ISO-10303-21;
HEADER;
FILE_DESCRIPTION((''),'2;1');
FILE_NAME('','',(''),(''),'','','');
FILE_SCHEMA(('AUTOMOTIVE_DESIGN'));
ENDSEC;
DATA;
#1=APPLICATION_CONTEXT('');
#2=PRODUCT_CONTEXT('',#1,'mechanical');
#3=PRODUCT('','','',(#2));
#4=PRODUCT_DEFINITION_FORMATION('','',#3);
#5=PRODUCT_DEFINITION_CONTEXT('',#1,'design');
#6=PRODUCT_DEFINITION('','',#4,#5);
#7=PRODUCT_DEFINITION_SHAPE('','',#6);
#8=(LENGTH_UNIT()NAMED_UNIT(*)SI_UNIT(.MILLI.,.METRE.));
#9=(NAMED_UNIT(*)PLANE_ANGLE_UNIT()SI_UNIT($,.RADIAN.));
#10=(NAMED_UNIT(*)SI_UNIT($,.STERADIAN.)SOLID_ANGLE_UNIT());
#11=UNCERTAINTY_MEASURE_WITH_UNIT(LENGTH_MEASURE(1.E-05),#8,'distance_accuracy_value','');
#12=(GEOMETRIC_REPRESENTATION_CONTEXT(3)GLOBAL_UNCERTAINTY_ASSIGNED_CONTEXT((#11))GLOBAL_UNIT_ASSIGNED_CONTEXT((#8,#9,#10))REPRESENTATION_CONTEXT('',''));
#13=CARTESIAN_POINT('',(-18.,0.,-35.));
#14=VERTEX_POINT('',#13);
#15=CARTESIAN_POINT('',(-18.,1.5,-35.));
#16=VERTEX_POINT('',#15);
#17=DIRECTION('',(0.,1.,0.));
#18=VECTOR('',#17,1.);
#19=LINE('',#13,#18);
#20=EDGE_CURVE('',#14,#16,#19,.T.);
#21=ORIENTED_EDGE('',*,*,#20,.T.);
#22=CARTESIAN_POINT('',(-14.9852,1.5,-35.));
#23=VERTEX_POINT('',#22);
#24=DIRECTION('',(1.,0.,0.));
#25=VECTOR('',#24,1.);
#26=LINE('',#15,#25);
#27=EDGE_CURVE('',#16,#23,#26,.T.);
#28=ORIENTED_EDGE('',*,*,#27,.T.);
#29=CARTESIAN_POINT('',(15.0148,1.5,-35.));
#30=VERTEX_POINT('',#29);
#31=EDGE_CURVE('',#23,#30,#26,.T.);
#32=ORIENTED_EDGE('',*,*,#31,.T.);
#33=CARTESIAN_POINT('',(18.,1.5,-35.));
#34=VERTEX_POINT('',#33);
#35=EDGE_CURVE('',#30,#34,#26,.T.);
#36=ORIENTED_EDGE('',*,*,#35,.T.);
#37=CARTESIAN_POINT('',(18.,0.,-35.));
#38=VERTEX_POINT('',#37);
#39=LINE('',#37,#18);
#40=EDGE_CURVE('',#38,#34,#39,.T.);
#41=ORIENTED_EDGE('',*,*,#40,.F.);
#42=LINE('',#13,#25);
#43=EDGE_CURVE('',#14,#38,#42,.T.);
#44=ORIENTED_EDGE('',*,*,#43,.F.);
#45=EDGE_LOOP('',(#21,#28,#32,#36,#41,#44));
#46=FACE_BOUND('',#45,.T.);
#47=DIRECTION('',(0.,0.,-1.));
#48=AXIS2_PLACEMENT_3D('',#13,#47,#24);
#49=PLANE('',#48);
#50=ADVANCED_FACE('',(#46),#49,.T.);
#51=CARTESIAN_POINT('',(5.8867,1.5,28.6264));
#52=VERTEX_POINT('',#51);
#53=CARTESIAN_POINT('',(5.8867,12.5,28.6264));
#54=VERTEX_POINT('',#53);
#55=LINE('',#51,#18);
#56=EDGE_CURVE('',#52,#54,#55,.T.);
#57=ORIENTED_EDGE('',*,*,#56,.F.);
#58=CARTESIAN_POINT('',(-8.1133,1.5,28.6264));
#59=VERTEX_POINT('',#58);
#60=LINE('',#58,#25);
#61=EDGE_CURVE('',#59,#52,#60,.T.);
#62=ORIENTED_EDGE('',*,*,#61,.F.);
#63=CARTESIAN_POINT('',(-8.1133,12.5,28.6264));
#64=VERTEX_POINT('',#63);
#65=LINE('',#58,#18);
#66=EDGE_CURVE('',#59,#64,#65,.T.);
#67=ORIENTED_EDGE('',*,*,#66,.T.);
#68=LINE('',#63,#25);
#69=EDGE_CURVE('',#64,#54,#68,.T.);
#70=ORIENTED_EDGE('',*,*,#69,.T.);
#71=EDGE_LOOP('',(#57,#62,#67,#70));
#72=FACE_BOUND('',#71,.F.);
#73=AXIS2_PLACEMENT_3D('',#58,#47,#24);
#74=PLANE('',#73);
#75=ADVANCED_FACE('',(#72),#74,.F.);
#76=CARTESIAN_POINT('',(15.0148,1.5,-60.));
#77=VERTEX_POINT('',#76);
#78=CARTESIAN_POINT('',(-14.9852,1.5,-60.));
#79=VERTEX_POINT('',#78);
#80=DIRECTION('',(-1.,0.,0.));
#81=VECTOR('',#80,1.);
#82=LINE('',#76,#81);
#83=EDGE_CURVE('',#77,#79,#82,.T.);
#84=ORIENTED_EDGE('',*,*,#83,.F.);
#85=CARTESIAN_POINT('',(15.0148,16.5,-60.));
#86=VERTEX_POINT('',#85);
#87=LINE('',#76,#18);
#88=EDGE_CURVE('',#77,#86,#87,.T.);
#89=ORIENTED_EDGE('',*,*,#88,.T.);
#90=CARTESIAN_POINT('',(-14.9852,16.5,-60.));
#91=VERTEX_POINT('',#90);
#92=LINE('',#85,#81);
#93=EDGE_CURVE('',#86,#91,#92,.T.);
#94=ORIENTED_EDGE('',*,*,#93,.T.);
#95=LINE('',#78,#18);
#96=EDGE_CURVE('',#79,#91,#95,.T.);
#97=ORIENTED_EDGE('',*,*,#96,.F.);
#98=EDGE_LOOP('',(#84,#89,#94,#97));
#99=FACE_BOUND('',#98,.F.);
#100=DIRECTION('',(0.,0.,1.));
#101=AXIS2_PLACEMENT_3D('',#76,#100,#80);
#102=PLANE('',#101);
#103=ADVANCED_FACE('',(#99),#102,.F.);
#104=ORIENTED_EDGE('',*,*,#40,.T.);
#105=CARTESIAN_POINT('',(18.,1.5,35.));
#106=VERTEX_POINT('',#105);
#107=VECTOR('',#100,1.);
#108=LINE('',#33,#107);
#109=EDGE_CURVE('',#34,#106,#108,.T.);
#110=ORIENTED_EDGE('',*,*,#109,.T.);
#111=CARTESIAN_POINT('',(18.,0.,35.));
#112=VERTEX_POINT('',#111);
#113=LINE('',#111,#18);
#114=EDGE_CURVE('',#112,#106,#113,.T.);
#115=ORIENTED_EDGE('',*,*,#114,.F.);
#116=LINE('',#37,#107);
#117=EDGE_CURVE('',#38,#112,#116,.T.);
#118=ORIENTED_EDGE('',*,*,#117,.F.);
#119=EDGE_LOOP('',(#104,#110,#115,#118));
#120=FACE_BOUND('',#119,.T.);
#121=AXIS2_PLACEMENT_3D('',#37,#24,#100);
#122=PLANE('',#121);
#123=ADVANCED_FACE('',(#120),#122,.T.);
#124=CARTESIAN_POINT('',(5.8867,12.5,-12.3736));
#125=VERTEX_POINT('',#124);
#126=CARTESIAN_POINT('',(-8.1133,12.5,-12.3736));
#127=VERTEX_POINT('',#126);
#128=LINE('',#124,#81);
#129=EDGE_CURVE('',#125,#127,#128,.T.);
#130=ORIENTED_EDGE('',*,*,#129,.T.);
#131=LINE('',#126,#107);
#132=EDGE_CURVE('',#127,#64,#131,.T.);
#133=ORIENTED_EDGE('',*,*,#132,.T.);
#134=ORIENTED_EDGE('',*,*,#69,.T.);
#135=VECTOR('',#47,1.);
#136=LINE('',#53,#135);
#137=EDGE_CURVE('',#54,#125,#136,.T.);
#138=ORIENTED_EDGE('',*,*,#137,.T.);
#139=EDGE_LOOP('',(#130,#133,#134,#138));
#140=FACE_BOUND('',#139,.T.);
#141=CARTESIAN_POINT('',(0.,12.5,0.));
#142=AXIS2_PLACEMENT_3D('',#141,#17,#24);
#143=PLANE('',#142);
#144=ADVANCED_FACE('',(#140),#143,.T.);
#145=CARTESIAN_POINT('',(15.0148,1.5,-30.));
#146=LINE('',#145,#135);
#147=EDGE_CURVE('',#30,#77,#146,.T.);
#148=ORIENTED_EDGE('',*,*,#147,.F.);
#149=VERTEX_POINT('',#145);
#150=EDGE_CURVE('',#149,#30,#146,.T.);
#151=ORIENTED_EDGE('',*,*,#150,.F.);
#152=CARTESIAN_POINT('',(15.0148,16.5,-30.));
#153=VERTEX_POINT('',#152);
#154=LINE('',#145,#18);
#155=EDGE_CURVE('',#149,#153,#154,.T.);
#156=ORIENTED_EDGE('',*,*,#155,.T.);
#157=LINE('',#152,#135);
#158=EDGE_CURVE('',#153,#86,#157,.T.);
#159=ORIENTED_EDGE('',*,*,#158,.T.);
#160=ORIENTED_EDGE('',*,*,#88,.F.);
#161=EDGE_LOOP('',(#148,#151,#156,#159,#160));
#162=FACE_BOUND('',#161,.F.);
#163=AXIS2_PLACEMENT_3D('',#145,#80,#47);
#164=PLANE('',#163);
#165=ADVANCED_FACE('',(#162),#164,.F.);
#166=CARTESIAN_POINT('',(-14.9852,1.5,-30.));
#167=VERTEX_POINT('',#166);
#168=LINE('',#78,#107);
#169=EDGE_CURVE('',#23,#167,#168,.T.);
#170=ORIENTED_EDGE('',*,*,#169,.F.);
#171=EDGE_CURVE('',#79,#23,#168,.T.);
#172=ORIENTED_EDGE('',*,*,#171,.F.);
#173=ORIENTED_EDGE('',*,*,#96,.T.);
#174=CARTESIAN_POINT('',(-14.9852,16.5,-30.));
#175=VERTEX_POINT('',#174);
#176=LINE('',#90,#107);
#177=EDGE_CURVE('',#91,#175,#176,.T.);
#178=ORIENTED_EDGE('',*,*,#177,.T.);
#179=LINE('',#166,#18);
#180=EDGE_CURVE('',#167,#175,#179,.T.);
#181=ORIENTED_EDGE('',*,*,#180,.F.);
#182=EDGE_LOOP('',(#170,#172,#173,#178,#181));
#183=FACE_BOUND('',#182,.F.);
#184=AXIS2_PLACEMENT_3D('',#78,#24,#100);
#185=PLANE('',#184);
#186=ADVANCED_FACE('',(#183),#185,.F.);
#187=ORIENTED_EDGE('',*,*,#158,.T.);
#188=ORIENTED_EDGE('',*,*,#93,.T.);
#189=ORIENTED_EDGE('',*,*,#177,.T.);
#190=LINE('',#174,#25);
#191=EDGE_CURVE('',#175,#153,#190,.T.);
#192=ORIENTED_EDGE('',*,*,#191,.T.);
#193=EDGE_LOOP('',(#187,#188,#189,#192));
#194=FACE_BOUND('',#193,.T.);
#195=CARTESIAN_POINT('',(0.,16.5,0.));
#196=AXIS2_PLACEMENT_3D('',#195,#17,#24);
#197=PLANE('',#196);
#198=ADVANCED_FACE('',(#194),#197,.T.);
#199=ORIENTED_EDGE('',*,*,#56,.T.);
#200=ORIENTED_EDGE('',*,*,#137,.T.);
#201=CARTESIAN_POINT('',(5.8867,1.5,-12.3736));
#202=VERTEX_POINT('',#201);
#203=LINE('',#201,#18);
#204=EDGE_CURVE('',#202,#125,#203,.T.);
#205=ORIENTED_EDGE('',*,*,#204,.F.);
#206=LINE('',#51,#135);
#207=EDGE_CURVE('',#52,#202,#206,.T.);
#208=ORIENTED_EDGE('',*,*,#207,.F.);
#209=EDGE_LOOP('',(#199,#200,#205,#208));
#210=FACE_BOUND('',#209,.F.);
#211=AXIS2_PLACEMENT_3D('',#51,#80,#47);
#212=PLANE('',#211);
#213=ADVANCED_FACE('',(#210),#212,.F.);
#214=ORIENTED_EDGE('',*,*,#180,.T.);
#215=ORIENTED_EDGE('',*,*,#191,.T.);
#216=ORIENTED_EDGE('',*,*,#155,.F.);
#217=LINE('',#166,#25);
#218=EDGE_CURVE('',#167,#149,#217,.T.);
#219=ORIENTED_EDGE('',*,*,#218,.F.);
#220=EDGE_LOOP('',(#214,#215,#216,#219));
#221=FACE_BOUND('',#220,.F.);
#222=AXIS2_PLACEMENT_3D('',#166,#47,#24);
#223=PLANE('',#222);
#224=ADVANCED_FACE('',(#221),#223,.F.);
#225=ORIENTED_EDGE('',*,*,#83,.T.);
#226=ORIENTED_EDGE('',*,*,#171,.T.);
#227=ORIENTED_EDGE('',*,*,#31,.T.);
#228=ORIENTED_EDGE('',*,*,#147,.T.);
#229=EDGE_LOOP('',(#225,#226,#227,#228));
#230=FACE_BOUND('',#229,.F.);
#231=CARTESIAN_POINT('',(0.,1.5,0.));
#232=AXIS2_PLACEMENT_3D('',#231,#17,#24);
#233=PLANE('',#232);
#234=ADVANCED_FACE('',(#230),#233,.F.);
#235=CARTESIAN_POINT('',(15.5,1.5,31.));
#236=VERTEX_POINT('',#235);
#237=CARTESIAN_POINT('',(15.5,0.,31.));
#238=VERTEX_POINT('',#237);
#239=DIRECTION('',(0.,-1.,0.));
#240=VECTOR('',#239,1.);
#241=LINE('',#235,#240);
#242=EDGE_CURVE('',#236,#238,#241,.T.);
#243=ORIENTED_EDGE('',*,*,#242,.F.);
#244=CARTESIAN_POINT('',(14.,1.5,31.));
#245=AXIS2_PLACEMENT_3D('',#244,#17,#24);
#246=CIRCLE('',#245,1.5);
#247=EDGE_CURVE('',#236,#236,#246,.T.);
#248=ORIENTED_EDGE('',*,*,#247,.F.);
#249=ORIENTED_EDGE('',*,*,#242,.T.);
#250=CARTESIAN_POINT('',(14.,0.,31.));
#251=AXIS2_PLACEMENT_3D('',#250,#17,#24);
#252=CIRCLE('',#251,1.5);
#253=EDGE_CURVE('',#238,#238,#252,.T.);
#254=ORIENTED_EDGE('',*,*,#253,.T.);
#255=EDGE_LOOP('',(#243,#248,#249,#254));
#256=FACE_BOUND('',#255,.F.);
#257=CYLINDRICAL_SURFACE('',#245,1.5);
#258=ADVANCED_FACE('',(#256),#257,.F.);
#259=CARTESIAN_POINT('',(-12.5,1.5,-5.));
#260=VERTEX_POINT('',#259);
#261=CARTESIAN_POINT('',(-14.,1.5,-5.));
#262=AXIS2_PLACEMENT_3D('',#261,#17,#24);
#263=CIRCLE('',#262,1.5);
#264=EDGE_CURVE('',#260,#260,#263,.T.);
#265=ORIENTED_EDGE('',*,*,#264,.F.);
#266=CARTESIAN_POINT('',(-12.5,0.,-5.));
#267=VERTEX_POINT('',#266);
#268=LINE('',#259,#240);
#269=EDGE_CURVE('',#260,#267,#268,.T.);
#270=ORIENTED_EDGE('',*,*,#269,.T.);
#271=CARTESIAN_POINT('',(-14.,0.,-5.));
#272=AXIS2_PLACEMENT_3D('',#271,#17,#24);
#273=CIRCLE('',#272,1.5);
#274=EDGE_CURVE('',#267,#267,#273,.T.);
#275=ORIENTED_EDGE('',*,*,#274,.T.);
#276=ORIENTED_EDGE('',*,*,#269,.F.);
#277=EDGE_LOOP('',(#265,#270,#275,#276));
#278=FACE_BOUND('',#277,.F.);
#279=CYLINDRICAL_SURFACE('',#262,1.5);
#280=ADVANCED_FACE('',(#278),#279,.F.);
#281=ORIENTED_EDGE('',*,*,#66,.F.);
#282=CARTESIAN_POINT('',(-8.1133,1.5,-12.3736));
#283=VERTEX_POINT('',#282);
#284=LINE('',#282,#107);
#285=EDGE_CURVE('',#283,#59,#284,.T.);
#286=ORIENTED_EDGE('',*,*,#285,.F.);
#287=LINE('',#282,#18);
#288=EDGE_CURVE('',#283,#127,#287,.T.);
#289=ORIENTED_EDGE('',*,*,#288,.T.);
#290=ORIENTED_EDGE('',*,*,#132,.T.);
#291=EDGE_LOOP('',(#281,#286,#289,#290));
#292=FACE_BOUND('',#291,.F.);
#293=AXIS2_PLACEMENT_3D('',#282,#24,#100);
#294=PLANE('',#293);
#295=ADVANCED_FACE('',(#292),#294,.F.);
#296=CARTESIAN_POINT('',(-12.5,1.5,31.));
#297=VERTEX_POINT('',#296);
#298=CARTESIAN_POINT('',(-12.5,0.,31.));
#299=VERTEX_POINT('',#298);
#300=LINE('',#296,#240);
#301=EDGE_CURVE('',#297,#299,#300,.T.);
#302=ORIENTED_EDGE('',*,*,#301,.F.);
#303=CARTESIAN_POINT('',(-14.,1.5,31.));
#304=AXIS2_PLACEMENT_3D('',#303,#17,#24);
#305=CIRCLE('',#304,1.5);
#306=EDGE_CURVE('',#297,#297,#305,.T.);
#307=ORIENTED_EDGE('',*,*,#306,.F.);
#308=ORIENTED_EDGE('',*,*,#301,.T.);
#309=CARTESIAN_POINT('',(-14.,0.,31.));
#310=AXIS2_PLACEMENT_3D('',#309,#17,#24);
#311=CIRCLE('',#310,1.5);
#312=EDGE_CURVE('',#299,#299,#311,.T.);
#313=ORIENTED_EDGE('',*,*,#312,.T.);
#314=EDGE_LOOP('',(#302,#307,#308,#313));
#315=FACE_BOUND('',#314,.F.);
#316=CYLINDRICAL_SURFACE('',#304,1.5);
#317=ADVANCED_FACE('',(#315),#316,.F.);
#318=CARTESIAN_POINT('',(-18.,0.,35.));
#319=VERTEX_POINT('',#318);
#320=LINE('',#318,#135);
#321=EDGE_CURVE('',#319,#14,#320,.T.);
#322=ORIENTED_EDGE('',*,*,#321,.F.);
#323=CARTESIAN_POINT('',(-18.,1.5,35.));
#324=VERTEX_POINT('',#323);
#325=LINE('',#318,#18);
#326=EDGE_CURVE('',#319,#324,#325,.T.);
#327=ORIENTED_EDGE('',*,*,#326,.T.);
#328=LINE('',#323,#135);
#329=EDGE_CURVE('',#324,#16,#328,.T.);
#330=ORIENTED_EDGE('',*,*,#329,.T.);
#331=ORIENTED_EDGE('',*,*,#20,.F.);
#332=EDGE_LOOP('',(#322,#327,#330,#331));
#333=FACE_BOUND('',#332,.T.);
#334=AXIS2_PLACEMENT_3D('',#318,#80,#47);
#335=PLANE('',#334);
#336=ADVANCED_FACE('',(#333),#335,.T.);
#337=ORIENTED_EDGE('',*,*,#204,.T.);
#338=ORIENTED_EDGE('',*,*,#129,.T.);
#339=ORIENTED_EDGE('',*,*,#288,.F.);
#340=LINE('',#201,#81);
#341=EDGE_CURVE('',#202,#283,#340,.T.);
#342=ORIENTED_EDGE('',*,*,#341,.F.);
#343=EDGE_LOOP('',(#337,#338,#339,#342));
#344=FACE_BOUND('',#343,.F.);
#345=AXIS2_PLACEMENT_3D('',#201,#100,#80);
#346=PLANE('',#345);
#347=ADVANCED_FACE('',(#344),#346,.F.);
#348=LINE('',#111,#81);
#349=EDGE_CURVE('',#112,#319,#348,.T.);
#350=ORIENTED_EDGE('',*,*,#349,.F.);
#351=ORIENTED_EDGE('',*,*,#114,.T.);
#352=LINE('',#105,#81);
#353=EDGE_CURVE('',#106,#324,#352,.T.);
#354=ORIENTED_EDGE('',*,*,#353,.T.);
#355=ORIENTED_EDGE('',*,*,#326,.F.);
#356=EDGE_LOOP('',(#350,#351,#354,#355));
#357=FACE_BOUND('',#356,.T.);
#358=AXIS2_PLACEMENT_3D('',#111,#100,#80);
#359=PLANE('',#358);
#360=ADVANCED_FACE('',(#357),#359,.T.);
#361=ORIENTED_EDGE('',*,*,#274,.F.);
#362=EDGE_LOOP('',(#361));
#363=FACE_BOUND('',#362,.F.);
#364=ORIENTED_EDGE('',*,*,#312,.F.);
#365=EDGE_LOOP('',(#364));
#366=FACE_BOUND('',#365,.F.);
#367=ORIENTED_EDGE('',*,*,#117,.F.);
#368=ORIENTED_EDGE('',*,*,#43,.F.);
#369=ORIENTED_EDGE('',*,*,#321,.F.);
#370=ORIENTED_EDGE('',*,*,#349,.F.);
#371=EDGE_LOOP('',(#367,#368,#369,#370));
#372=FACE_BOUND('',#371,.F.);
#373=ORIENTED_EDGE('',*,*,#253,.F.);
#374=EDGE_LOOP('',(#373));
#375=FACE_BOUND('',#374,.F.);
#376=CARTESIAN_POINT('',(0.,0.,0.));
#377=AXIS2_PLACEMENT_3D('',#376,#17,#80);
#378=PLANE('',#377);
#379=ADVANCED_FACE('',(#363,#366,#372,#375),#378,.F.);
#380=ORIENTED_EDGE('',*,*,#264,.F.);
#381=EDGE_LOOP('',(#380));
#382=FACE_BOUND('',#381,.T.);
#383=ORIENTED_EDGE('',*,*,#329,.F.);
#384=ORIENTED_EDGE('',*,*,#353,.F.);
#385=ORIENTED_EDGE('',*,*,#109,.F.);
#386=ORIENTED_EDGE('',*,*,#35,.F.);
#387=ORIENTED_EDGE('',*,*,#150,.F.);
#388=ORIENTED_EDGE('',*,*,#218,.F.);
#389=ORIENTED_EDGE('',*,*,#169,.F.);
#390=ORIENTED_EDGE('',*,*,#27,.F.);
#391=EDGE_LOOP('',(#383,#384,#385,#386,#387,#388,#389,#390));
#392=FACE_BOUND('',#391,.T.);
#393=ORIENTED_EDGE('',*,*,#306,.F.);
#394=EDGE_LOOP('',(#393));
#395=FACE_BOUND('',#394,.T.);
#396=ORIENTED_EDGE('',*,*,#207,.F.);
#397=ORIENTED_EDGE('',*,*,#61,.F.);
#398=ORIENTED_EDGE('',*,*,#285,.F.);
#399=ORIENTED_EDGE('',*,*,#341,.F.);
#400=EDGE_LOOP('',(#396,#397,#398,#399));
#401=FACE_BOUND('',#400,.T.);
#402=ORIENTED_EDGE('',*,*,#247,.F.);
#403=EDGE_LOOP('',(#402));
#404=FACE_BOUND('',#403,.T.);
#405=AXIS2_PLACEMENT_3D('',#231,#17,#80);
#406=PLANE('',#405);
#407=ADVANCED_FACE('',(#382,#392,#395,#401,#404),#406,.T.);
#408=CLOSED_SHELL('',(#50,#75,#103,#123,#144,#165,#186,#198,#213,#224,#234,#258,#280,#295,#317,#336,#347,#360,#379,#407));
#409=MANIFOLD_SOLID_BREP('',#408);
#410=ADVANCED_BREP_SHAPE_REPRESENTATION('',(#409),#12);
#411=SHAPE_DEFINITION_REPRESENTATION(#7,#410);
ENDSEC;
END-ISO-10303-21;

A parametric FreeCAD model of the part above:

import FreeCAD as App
import Part
import Sketcher
from FreeCAD import Vector

doc = App.newDocument("Part")
body = doc.addObject("PartDesign::Body", "Body")

sketch1 = body.newObject("Sketcher::SketchObject", "Sketch")
sketch1.AttachmentSupport = (doc.getObject("XZ_Plane"), [""])
sketch1.MapMode = "FlatFace"
sketch1.addGeometry(Part.LineSegment(Vector(-18, 35, 0), Vector(18, 35, 0)), False)
sketch1.addGeometry(Part.LineSegment(Vector(18, 35, 0), Vector(18, -35, 0)), False)
sketch1.addGeometry(Part.LineSegment(Vector(18, -35, 0), Vector(-18, -35, 0)), False)
sketch1.addGeometry(Part.LineSegment(Vector(-18, -35, 0), Vector(-18, 35, 0)), False)
sketch1.addConstraint(Sketcher.Constraint("Coincident", 0, 2, 1, 1))
sketch1.addConstraint(Sketcher.Constraint("Coincident", 1, 2, 2, 1))
sketch1.addConstraint(Sketcher.Constraint("Coincident", 2, 2, 3, 1))
sketch1.addConstraint(Sketcher.Constraint("Coincident", 3, 2, 0, 1))
sketch1.addConstraint(Sketcher.Constraint("Horizontal", 0))
sketch1.addConstraint(Sketcher.Constraint("Vertical", 1))
sketch1.addConstraint(Sketcher.Constraint("Horizontal", 2))
sketch1.addConstraint(Sketcher.Constraint("Vertical", 3))
sketch1.addConstraint(Sketcher.Constraint("Symmetric", 0, 2, 2, 2, -1, 1))
sketch1.addConstraint(Sketcher.Constraint("DistanceX", 0, 1, 0, 2, 36.0))
sketch1.addConstraint(Sketcher.Constraint("DistanceY", 1, 2, 1, 1, 70.0))
pad1 = body.newObject("PartDesign::Pad", "Pad")
pad1.Profile = sketch1
pad1.Length = 1.5
pad1.Reversed = True

sketch2 = body.newObject("Sketcher::SketchObject", "Sketch001")
sketch2.AttachmentSupport = (doc.getObject("XZ_Plane"), [""])
sketch2.MapMode = "FlatFace"
sketch2.AttachmentOffset = App.Placement(Vector(0, 0, -1.5), App.Rotation())
sketch2.addGeometry(Part.Circle(Vector(-14, 31, 0), Vector(0, 0, 1), 1.5), False)
sketch2.addGeometry(Part.Circle(Vector(14, 31, 0), Vector(0, 0, 1), 1.5), False)
sketch2.addGeometry(Part.Circle(Vector(-14, -5, 0), Vector(0, 0, 1), 1.5), False)
sketch2.addConstraint(Sketcher.Constraint("Equal", 0, 1))
sketch2.addConstraint(Sketcher.Constraint("Equal", 1, 2))
sketch2.addConstraint(Sketcher.Constraint("Symmetric", 0, 3, 1, 3, -2))
sketch2.addConstraint(Sketcher.Constraint("Vertical", 0, 3, 2, 3))
sketch2.addConstraint(Sketcher.Constraint("Diameter", 0, 3.0))
sketch2.addConstraint(Sketcher.Constraint("DistanceX", 0, 3, -1, 1, 14.0))
sketch2.addConstraint(Sketcher.Constraint("DistanceY", 2, 3, 0, 3, 36.0))
sketch2.addConstraint(Sketcher.Constraint("DistanceY", -1, 1, 0, 3, 31.0))
pocket1 = body.newObject("PartDesign::Pocket", "Pocket")
pocket1.Profile = sketch2
pocket1.Type = "ThroughAll"
pocket1.Reversed = True

sketch3 = body.newObject("Sketcher::SketchObject", "Sketch002")
sketch3.AttachmentSupport = (doc.getObject("XZ_Plane"), [""])
sketch3.MapMode = "FlatFace"
sketch3.AttachmentOffset = App.Placement(Vector(0, 0, -1.5), App.Rotation())
sketch3.addGeometry(Part.LineSegment(Vector(-8.1133, -12.3736, 0), Vector(-8.1133, 28.6264, 0)), False)
sketch3.addGeometry(Part.LineSegment(Vector(-8.1133, 28.6264, 0), Vector(5.8867, 28.6264, 0)), False)
sketch3.addGeometry(Part.LineSegment(Vector(5.8867, 28.6264, 0), Vector(5.8867, -12.3736, 0)), False)
sketch3.addGeometry(Part.LineSegment(Vector(5.8867, -12.3736, 0), Vector(-8.1133, -12.3736, 0)), False)
sketch3.addConstraint(Sketcher.Constraint("Coincident", 0, 2, 1, 1))
sketch3.addConstraint(Sketcher.Constraint("Coincident", 1, 2, 2, 1))
sketch3.addConstraint(Sketcher.Constraint("Coincident", 2, 2, 3, 1))
sketch3.addConstraint(Sketcher.Constraint("Coincident", 3, 2, 0, 1))
sketch3.addConstraint(Sketcher.Constraint("Vertical", 0))
sketch3.addConstraint(Sketcher.Constraint("Horizontal", 1))
sketch3.addConstraint(Sketcher.Constraint("Vertical", 2))
sketch3.addConstraint(Sketcher.Constraint("Horizontal", 3))
sketch3.addConstraint(Sketcher.Constraint("DistanceX", 1, 1, 1, 2, 14.0))
sketch3.addConstraint(Sketcher.Constraint("DistanceY", 0, 1, 0, 2, 41.0))
sketch3.addConstraint(Sketcher.Constraint("DistanceX", 0, 2, -1, 1, 8.1133))
sketch3.addConstraint(Sketcher.Constraint("DistanceY", -1, 1, 0, 2, 28.6264))
pad2 = body.newObject("PartDesign::Pad", "Pad001")
pad2.Profile = sketch3
pad2.Length = 11
pad2.Reversed = True

sketch4 = body.newObject("Sketcher::SketchObject", "Sketch003")
sketch4.AttachmentSupport = (doc.getObject("XZ_Plane"), [""])
sketch4.MapMode = "FlatFace"
sketch4.AttachmentOffset = App.Placement(Vector(0, 0, -1.5), App.Rotation())
sketch4.addGeometry(Part.LineSegment(Vector(-14.9852, -60, 0), Vector(-14.9852, -30, 0)), False)
sketch4.addGeometry(Part.LineSegment(Vector(-14.9852, -30, 0), Vector(15.0148, -30, 0)), False)
sketch4.addGeometry(Part.LineSegment(Vector(15.0148, -30, 0), Vector(15.0148, -60, 0)), False)
sketch4.addGeometry(Part.LineSegment(Vector(15.0148, -60, 0), Vector(-14.9852, -60, 0)), False)
sketch4.addConstraint(Sketcher.Constraint("Coincident", 0, 2, 1, 1))
sketch4.addConstraint(Sketcher.Constraint("Coincident", 1, 2, 2, 1))
sketch4.addConstraint(Sketcher.Constraint("Coincident", 2, 2, 3, 1))
sketch4.addConstraint(Sketcher.Constraint("Coincident", 3, 2, 0, 1))
sketch4.addConstraint(Sketcher.Constraint("Vertical", 0))
sketch4.addConstraint(Sketcher.Constraint("Horizontal", 1))
sketch4.addConstraint(Sketcher.Constraint("Vertical", 2))
sketch4.addConstraint(Sketcher.Constraint("Horizontal", 3))
sketch4.addConstraint(Sketcher.Constraint("Equal", 3, 0))
sketch4.addConstraint(Sketcher.Constraint("DistanceX", 1, 1, 1, 2, 30.0))
sketch4.addConstraint(Sketcher.Constraint("DistanceY", 0, 2, -1, 1, 30.0))
sketch4.addConstraint(Sketcher.Constraint("DistanceX", 0, 2, -1, 1, 14.9852))
pad3 = body.newObject("PartDesign::Pad", "Pad002")
pad3.Profile = sketch4
pad3.Length = 15
pad3.Reversed = True

doc.recompute()
